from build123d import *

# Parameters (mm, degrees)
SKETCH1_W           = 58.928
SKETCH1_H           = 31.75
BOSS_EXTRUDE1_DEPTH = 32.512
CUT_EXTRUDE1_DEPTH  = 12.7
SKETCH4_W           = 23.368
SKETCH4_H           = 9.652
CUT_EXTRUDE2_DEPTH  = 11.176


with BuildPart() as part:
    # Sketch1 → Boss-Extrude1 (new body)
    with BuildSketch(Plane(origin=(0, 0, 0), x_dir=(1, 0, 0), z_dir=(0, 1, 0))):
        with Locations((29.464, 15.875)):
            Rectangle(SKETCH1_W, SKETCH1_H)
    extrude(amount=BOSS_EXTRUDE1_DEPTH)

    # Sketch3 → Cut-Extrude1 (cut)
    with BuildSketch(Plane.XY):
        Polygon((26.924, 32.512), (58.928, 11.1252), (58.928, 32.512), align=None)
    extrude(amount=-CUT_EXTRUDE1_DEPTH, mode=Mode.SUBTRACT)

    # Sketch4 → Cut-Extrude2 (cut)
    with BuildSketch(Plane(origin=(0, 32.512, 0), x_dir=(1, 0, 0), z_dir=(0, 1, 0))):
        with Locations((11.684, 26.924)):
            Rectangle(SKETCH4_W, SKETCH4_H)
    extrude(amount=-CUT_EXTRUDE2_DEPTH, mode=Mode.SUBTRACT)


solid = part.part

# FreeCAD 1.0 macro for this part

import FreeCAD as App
import Part
import Sketcher
from FreeCAD import Vector
Q = App.Units.Quantity


def add_polygon(sketch, points):
    """Adds a closed chain of lines whose ends are joined by coincident constraints."""
    first, n = sketch.GeometryCount, len(points)
    for a, b in zip(points, points[1:] + points[:1]):
        sketch.addGeometry(Part.LineSegment(App.Vector(*a, 0), App.Vector(*b, 0)), False)
    for i in range(n):
        sketch.addConstraint(Sketcher.Constraint("Coincident", first + i, 2, first + (i + 1) % n, 1))

doc = App.newDocument("Part")
body = doc.addObject("PartDesign::Body", "Body")

# Sketch on XZ plane
sketch1 = body.newObject("Sketcher::SketchObject", "Sketch")
sketch1.AttachmentSupport = (doc.getObject("XZ_Plane"), [""])
sketch1.MapMode = "FlatFace"
add_polygon(sketch1, [(0, -32), (0, 0), (59, 0), (59, -32)])  # lines 0-3
sketch1.addConstraint(Sketcher.Constraint("Vertical", 0))
sketch1.addConstraint(Sketcher.Constraint("Horizontal", 1))
sketch1.addConstraint(Sketcher.Constraint("Vertical", 2))
sketch1.addConstraint(Sketcher.Constraint("Horizontal", 3))
sketch1.addConstraint(Sketcher.Constraint("Coincident", 0, 2, -1, 1))
sketch1.addConstraint(Sketcher.Constraint("DistanceX", 1, 1, 1, 2, Q("2.32 in")))
sketch1.addConstraint(Sketcher.Constraint("DistanceY", 0, 1, 0, 2, Q("1.25 in")))
pad1 = body.newObject("PartDesign::Pad", "Pad")
pad1.Profile = sketch1
pad1.Length = Q("1.28 in")
pad1.Reversed = True

# Sketch on XY plane
sketch2 = body.newObject("Sketcher::SketchObject", "Sketch001")
sketch2.AttachmentSupport = (doc.getObject("XY_Plane"), [""])
sketch2.MapMode = "FlatFace"
add_polygon(sketch2, [(27, 33), (59, 11), (59, 33)])  # lines 0-2
sketch2.addConstraint(Sketcher.Constraint("Vertical", 1))
sketch2.addConstraint(Sketcher.Constraint("Horizontal", 2))
sketch2.addConstraint(Sketcher.Constraint("DistanceX", 2, 2, 2, 1, Q("1.26 in")))
sketch2.addConstraint(Sketcher.Constraint("DistanceY", 1, 1, 1, 2, Q("0.842 in")))
sketch2.addConstraint(Sketcher.Constraint("DistanceX", -1, 1, 0, 2, Q("2.32 in")))
sketch2.addConstraint(Sketcher.Constraint("DistanceY", -1, 1, 1, 2, Q("1.28 in")))
pocket1 = body.newObject("PartDesign::Pocket", "Pocket")
pocket1.Profile = sketch2
pocket1.Length = Q("0.5 in")

# Sketch on XZ plane
sketch3 = body.newObject("Sketcher::SketchObject", "Sketch002")
sketch3.AttachmentSupport = (doc.getObject("XZ_Plane"), [""])
sketch3.MapMode = "FlatFace"
sketch3.AttachmentOffset = App.Placement(Vector(0, 0, -1.28 * 25.4), App.Rotation())
add_polygon(sketch3, [(0, -32), (0, -22), (23, -22), (23, -32)])  # lines 0-3
sketch3.addConstraint(Sketcher.Constraint("Vertical", 0))
sketch3.addConstraint(Sketcher.Constraint("Horizontal", 1))
sketch3.addConstraint(Sketcher.Constraint("Vertical", 2))
sketch3.addConstraint(Sketcher.Constraint("Horizontal", 3))
sketch3.addConstraint(Sketcher.Constraint("PointOnObject", 0, 2, -2))
sketch3.addConstraint(Sketcher.Constraint("DistanceX", 1, 1, 1, 2, Q("0.92 in")))
sketch3.addConstraint(Sketcher.Constraint("DistanceY", 0, 1, 0, 2, Q("0.38 in")))
sketch3.addConstraint(Sketcher.Constraint("DistanceY", 0, 2, -1, 1, Q("0.87 in")))
pocket2 = body.newObject("PartDesign::Pocket", "Pocket001")
pocket2.Profile = sketch3
pocket2.Length = Q("0.44 in")
pocket2.Reversed = True

doc.recompute()
